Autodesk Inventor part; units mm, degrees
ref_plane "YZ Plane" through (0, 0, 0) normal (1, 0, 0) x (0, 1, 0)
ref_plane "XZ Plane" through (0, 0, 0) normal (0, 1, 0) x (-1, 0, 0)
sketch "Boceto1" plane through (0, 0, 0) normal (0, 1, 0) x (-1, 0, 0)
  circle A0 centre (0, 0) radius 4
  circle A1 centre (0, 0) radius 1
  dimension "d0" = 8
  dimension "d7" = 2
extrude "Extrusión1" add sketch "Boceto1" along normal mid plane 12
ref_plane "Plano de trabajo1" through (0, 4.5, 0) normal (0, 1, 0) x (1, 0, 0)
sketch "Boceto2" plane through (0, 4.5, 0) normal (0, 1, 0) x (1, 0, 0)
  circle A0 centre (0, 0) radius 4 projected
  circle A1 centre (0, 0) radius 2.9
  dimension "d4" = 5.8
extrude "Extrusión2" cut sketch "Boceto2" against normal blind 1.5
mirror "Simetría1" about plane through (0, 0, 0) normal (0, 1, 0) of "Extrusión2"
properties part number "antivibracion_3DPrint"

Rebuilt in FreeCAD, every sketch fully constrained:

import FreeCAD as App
import Part
import Sketcher

V = App.Vector

doc = App.newDocument("Part")
params = doc.addObject("Spreadsheet::Sheet", "Params")
for row, (alias, value) in enumerate([
    ("sketch1_diameter", "8 mm"),
    ("sketch1_diameter2", "2 mm"),
    ("pad1_length", "12 mm"),
    ("sketch2_diameter", "5.8 mm"),
    ("sketch2_diameter2", "8 mm"),
    ("pocket1_length", "1.5 mm"),
], start=1):
    params.set(f"A{row}", alias)
    params.set(f"B{row}", "=" + value)
    params.setAlias(f"B{row}", alias)

body = doc.addObject("PartDesign::Body", "Body")

sketch1 = doc.addObject("Sketcher::SketchObject", "Sketch")
body.addObject(sketch1)
sketch1.AttachmentSupport = (doc.XZ_Plane, [""])
sketch1.MapMode = "FlatFace"
sketch1.addGeometry([
    Part.Circle(V(0, 0, 0), V(0, 0, 1), 4),
    Part.Circle(V(0, 0, 0), V(0, 0, 1), 1),
], False)
sketch1.addConstraint([
    Sketcher.Constraint("Coincident", 0, 3, -1, 1),
    Sketcher.Constraint("Coincident", 1, 3, -1, 1),
    Sketcher.Constraint("Diameter", 0, 8.0),
    Sketcher.Constraint("Diameter", 1, 2.0),
])
sketch1.setExpression("Constraints[2]", "Params.sketch1_diameter")
sketch1.setExpression("Constraints[3]", "Params.sketch1_diameter2")
pad1 = doc.addObject("PartDesign::Pad", "Pad")
body.addObject(pad1)
pad1.Profile = sketch1
pad1.setExpression("Length", "Params.pad1_length")
pad1.Midplane = True

sketch2 = doc.addObject("Sketcher::SketchObject", "Sketch001")
body.addObject(sketch2)
sketch2.AttachmentSupport = (doc.XZ_Plane, [""])
sketch2.MapMode = "FlatFace"
sketch2.AttachmentOffset = App.Placement(V(0, 0, -4.5), App.Rotation())
sketch2.addGeometry([
    Part.Circle(V(0, 0, 0), V(0, 0, 1), 4),
    Part.Circle(V(0, 0, 0), V(0, 0, 1), 2.9),
], False)
sketch2.addConstraint([
    Sketcher.Constraint("Coincident", 0, 3, -1, 1),
    Sketcher.Constraint("Coincident", 1, 3, -1, 1),
    Sketcher.Constraint("Diameter", 1, 5.8),
    Sketcher.Constraint("Diameter", 0, 8.0),
])
sketch2.setExpression("Constraints[2]", "Params.sketch2_diameter")
sketch2.setExpression("Constraints[3]", "Params.sketch2_diameter2")
pocket1 = doc.addObject("PartDesign::Pocket", "Pocket")
body.addObject(pocket1)
pocket1.Profile = sketch2
pocket1.setExpression("Length", "Params.pocket1_length")
pocket1.Reversed = True
doc.recompute()

mirrored = doc.addObject("PartDesign::Mirrored", "Mirrored")
body.addObject(mirrored)
mirrored.Originals = [pocket1]
mirrored.MirrorPlane = (doc.XZ_Plane, [""])
body.Tip = mirrored

doc.recompute()
